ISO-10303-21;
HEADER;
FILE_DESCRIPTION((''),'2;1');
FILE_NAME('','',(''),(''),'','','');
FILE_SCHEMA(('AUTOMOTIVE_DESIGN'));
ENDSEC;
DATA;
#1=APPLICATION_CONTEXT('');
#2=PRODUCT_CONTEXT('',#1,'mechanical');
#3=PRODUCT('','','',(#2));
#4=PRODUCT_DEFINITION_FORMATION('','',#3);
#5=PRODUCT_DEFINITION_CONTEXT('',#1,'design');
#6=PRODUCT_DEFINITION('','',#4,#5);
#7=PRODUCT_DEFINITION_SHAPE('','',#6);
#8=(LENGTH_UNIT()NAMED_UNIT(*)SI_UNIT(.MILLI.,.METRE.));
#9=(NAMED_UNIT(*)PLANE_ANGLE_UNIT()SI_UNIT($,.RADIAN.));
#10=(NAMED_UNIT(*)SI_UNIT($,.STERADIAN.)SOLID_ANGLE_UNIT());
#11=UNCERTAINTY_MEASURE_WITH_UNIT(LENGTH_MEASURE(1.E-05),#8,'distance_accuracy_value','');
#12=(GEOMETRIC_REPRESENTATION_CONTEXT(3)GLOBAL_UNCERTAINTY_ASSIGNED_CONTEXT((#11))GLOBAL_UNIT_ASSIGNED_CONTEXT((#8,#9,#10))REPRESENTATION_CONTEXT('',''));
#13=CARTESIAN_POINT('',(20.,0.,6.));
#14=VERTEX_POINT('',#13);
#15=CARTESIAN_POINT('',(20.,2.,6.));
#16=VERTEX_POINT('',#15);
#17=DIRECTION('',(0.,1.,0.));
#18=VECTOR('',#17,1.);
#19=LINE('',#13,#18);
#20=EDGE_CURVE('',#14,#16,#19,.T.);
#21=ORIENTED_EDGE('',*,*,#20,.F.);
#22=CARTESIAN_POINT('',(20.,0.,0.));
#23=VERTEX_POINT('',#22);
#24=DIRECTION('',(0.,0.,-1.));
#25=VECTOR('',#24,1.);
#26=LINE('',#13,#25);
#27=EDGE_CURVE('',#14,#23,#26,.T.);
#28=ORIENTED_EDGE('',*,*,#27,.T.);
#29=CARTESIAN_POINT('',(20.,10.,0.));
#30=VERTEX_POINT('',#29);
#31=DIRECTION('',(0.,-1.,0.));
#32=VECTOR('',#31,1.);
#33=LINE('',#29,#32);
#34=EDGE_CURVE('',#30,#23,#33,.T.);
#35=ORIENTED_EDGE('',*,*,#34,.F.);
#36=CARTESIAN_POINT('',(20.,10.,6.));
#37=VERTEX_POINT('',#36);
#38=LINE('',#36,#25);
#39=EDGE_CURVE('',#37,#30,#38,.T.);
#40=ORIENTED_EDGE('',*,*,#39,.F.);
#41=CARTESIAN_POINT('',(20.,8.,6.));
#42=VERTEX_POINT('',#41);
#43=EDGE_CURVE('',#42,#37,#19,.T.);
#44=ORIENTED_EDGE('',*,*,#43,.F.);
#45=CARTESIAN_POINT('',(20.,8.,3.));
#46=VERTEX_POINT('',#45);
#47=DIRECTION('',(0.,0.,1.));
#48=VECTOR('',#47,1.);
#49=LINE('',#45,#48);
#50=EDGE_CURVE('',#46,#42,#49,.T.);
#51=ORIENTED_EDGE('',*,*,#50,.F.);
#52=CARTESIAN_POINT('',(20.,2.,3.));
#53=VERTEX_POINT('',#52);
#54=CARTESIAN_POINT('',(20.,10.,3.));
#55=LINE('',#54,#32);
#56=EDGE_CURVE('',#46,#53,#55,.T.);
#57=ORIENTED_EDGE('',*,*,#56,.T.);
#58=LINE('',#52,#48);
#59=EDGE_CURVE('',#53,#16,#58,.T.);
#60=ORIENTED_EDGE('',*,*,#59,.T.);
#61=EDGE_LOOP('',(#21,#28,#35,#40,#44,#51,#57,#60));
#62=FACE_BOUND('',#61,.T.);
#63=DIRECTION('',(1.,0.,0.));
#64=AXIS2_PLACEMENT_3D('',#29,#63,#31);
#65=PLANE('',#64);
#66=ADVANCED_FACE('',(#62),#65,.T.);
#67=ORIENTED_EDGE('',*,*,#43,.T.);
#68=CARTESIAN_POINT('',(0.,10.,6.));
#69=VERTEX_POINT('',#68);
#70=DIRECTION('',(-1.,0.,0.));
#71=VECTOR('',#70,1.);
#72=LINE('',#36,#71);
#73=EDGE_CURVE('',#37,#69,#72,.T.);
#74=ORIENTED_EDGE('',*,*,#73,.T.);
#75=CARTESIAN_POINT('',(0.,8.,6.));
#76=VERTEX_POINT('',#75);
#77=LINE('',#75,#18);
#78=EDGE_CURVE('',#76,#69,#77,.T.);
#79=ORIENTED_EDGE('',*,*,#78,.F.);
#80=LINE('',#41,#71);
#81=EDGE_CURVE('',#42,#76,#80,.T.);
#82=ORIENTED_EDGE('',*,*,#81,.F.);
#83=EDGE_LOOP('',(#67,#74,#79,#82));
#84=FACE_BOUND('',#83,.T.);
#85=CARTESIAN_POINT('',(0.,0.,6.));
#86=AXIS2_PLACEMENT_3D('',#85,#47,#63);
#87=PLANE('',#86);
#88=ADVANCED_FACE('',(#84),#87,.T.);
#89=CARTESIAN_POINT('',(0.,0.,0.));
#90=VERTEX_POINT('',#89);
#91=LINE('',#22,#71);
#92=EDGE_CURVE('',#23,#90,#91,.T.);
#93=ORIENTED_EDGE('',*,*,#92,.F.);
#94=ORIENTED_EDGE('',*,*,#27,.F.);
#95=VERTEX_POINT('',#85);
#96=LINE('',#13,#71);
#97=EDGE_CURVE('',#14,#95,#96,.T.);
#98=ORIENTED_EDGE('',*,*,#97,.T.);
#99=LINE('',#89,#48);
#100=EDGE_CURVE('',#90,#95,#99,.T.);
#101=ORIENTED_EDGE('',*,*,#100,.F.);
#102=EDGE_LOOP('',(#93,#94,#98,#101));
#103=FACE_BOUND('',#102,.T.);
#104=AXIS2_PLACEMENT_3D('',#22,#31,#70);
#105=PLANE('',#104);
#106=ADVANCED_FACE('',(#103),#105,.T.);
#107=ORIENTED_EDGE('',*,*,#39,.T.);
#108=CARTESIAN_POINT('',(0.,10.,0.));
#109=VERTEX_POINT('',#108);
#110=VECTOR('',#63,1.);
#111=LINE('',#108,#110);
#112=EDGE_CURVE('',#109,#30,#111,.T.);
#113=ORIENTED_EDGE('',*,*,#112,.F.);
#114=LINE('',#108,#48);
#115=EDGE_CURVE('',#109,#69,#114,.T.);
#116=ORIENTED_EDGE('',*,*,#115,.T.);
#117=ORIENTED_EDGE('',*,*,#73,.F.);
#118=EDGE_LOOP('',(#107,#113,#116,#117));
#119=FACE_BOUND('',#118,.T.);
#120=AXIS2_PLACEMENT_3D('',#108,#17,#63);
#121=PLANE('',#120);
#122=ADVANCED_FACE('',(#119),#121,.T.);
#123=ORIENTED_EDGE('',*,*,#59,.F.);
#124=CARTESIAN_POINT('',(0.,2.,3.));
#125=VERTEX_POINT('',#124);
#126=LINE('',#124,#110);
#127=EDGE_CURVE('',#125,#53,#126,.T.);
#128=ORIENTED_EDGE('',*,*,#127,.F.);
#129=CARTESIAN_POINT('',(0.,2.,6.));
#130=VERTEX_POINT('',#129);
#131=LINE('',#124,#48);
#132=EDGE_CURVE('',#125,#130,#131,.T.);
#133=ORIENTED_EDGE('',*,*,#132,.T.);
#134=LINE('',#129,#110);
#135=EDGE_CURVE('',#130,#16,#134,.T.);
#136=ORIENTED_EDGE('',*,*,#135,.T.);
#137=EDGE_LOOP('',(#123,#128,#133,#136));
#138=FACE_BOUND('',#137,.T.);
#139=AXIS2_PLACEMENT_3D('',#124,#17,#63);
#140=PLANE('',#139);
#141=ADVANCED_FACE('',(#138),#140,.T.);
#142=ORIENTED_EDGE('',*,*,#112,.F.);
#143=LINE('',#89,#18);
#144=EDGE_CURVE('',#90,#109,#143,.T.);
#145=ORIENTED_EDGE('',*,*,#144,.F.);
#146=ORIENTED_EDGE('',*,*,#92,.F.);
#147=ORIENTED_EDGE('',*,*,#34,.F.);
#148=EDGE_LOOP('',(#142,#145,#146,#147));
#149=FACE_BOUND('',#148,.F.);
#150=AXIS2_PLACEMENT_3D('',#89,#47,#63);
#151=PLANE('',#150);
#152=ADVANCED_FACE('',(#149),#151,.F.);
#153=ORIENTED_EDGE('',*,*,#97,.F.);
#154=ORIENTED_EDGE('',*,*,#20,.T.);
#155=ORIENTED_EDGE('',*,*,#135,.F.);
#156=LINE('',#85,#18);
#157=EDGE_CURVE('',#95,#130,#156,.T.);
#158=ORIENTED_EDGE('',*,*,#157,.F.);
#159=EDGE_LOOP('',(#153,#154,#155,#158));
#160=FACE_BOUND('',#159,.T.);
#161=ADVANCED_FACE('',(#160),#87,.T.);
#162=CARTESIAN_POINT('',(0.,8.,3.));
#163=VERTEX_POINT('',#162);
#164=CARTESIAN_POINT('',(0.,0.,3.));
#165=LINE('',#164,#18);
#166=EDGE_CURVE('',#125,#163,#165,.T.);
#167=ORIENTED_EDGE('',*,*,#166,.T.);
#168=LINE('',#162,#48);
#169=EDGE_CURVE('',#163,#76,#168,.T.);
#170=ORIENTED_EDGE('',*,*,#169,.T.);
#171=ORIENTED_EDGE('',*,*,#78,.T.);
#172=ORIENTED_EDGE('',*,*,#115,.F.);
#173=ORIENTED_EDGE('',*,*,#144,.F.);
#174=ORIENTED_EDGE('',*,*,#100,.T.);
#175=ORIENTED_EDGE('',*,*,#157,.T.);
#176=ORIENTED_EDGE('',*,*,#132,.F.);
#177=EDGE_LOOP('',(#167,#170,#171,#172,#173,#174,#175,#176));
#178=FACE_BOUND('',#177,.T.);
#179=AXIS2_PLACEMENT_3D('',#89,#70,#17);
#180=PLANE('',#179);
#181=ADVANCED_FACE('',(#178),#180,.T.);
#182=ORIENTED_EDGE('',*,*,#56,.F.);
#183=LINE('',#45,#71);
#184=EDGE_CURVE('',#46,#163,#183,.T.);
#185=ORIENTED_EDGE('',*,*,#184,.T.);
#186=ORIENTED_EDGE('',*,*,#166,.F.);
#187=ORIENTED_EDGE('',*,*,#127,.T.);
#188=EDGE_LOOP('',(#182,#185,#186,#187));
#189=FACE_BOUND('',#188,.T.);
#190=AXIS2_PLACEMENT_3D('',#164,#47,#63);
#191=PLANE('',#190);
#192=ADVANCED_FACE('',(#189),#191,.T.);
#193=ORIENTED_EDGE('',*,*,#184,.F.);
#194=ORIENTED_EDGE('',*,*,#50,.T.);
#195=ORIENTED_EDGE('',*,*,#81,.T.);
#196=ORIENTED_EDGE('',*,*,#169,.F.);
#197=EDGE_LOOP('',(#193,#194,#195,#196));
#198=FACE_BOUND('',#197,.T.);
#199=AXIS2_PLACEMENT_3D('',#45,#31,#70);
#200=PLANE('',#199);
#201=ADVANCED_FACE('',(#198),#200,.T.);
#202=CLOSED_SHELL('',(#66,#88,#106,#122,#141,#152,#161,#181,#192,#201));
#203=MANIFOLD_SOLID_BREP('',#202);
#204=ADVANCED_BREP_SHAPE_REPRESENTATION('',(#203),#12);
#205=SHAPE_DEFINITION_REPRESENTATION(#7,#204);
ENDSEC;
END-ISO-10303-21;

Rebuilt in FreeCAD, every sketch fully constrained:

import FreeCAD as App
import Part
import Sketcher
Q = App.Units.Quantity

doc = App.newDocument("Part")
body = doc.addObject("PartDesign::Body", "Body")

sketch1 = body.newObject("Sketcher::SketchObject", "Sketch")
sketch1.AttachmentSupport = (doc.getObject("XY_Plane"), [""])
sketch1.MapMode = "FlatFace"
sketch1.addGeometry(Part.LineSegment(App.Vector(20, 10, 0), App.Vector(0, 10, 0)), False)
sketch1.addGeometry(Part.LineSegment(App.Vector(0, 10, 0), App.Vector(0, 0, 0)), False)
sketch1.addGeometry(Part.LineSegment(App.Vector(0, 0, 0), App.Vector(20, 0, 0)), False)
sketch1.addGeometry(Part.LineSegment(App.Vector(20, 0, 0), App.Vector(20, 10, 0)), False)
sketch1.addConstraint(Sketcher.Constraint("Coincident", 0, 2, 1, 1))
sketch1.addConstraint(Sketcher.Constraint("Coincident", 1, 2, 2, 1))
sketch1.addConstraint(Sketcher.Constraint("Coincident", 2, 2, 3, 1))
sketch1.addConstraint(Sketcher.Constraint("Coincident", 3, 2, 0, 1))
sketch1.addConstraint(Sketcher.Constraint("Horizontal", 0))
sketch1.addConstraint(Sketcher.Constraint("Vertical", 1))
sketch1.addConstraint(Sketcher.Constraint("Horizontal", 2))
sketch1.addConstraint(Sketcher.Constraint("Vertical", 3))
sketch1.addConstraint(Sketcher.Constraint("Coincident", 1, 2, -1, 1))
sketch1.addConstraint(Sketcher.Constraint("DistanceX", 0, 2, 0, 1, Q("20 mm")))
sketch1.addConstraint(Sketcher.Constraint("DistanceY", 1, 2, 1, 1, Q("10 mm")))
pad1 = body.newObject("PartDesign::Pad", "Pad")
pad1.Profile = sketch1
pad1.Length = 3

sketch2 = body.newObject("Sketcher::SketchObject", "Sketch001")
sketch2.AttachmentSupport = (doc.getObject("XY_Plane"), [""])
sketch2.MapMode = "FlatFace"
sketch2.AttachmentOffset = App.Placement(App.Vector(0, 0, 3), App.Rotation())
sketch2.addGeometry(Part.LineSegment(App.Vector(20, 8, 0), App.Vector(20, 10, 0)), False)
sketch2.addGeometry(Part.LineSegment(App.Vector(20, 10, 0), App.Vector(0, 10, 0)), False)
sketch2.addGeometry(Part.LineSegment(App.Vector(0, 10, 0), App.Vector(0, 8, 0)), False)
sketch2.addGeometry(Part.LineSegment(App.Vector(0, 8, 0), App.Vector(20, 8, 0)), False)
sketch2.addGeometry(Part.LineSegment(App.Vector(20, 0, 0), App.Vector(20, 2, 0)), False)
sketch2.addGeometry(Part.LineSegment(App.Vector(20, 2, 0), App.Vector(0, 2, 0)), False)
sketch2.addGeometry(Part.LineSegment(App.Vector(0, 2, 0), App.Vector(0, 0, 0)), False)
sketch2.addGeometry(Part.LineSegment(App.Vector(0, 0, 0), App.Vector(20, 0, 0)), False)
sketch2.addConstraint(Sketcher.Constraint("Coincident", 0, 2, 1, 1))
sketch2.addConstraint(Sketcher.Constraint("Coincident", 1, 2, 2, 1))
sketch2.addConstraint(Sketcher.Constraint("Coincident", 2, 2, 3, 1))
sketch2.addConstraint(Sketcher.Constraint("Coincident", 3, 2, 0, 1))
sketch2.addConstraint(Sketcher.Constraint("Coincident", 4, 2, 5, 1))
sketch2.addConstraint(Sketcher.Constraint("Coincident", 5, 2, 6, 1))
sketch2.addConstraint(Sketcher.Constraint("Coincident", 6, 2, 7, 1))
sketch2.addConstraint(Sketcher.Constraint("Coincident", 7, 2, 4, 1))
sketch2.addConstraint(Sketcher.Constraint("Vertical", 0))
sketch2.addConstraint(Sketcher.Constraint("Horizontal", 1))
sketch2.addConstraint(Sketcher.Constraint("Vertical", 2))
sketch2.addConstraint(Sketcher.Constraint("Horizontal", 3))
sketch2.addConstraint(Sketcher.Constraint("Vertical", 4))
sketch2.addConstraint(Sketcher.Constraint("Horizontal", 5))
sketch2.addConstraint(Sketcher.Constraint("Vertical", 6))
sketch2.addConstraint(Sketcher.Constraint("Horizontal", 7))
sketch2.addConstraint(Sketcher.Constraint("Coincident", 6, 2, -1, 1))
sketch2.addConstraint(Sketcher.Constraint("PointOnObject", 1, 2, -2))
sketch2.addConstraint(Sketcher.Constraint("Vertical", 3, 2, 4, 2))
sketch2.addConstraint(Sketcher.Constraint("Equal", 2, 4))
sketch2.addConstraint(Sketcher.Constraint("DistanceY", 0, 1, 0, 2, Q("2 mm")))
sketch2.addConstraint(Sketcher.Constraint("DistanceX", 1, 2, 1, 1, Q("20 mm")))
sketch2.addConstraint(Sketcher.Constraint("DistanceY", -1, 1, 0, 2, Q("10 mm")))
pad2 = body.newObject("PartDesign::Pad", "Pad001")
pad2.Profile = sketch2
pad2.Length = 3

doc.recompute()
